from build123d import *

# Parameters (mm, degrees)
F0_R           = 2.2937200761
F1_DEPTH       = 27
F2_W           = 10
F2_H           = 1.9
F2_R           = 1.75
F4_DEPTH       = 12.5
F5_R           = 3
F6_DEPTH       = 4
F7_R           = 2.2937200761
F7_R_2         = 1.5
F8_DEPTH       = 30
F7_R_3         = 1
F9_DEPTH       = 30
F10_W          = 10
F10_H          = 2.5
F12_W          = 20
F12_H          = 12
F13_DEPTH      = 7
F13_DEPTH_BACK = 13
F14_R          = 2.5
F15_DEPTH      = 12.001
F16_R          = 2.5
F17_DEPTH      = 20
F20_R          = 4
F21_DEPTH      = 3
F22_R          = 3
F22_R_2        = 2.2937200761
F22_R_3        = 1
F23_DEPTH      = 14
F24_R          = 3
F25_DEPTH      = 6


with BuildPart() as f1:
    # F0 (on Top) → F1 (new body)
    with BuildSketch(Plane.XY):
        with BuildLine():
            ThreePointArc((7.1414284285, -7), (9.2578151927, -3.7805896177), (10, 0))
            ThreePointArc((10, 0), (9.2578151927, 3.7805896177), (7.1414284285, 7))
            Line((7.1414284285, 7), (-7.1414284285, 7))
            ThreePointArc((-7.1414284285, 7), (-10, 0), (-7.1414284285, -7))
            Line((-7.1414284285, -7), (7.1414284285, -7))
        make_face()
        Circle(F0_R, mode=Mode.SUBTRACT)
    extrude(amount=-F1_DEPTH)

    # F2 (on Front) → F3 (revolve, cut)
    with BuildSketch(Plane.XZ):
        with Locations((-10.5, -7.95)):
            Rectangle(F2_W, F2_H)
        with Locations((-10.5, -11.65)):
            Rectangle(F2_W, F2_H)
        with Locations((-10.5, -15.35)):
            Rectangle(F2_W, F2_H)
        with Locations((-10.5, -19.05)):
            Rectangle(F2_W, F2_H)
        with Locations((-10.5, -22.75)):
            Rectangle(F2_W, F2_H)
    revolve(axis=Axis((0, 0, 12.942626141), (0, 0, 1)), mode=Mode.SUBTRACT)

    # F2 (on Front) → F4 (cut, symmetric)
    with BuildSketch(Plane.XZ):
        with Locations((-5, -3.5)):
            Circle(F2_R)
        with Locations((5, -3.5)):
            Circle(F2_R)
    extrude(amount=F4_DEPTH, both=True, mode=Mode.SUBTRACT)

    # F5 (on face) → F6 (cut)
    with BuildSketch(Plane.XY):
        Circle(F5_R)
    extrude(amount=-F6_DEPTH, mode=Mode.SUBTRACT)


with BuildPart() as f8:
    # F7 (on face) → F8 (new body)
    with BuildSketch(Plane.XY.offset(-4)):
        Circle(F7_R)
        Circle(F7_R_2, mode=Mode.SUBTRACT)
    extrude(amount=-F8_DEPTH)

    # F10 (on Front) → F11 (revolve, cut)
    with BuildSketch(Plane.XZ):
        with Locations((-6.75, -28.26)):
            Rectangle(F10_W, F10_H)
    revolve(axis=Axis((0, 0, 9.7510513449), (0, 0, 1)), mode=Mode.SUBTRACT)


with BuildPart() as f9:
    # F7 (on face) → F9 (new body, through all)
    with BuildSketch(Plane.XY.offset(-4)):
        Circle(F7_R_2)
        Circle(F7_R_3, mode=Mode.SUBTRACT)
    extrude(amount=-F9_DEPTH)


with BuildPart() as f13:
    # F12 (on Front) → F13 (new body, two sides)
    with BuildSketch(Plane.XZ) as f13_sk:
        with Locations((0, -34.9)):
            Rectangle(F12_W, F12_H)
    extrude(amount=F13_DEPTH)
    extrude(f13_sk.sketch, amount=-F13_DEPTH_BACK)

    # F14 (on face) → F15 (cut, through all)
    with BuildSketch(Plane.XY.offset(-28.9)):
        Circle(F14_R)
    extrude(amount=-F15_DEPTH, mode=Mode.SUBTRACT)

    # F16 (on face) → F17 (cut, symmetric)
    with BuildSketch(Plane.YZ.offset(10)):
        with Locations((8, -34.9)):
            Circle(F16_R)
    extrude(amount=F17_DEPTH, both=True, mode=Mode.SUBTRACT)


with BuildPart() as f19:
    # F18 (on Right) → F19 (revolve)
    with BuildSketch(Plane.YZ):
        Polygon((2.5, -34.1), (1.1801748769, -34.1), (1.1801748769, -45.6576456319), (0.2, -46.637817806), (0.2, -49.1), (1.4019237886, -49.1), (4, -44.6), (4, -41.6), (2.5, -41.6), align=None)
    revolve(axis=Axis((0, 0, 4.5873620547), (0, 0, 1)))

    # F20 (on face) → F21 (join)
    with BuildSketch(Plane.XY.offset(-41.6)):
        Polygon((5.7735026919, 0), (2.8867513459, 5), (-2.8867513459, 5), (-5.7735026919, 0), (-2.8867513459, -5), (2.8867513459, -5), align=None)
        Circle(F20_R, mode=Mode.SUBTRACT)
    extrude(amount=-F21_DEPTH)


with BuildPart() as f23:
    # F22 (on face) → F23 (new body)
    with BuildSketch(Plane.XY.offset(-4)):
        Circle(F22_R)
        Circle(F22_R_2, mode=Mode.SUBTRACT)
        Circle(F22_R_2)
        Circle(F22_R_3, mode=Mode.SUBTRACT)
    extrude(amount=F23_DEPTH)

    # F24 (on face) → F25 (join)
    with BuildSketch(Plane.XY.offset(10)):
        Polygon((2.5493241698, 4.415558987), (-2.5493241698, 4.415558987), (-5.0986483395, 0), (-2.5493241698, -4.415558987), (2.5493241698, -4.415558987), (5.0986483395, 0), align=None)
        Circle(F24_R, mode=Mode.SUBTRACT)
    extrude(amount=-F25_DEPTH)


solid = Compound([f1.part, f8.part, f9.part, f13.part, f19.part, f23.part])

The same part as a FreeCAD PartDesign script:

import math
import FreeCAD as App
import Part
import Sketcher
Q = App.Units.Quantity


def add_polygon(sketch, points):
    """Adds a closed chain of lines whose ends are joined by coincident constraints."""
    first, n = sketch.GeometryCount, len(points)
    for a, b in zip(points, points[1:] + points[:1]):
        sketch.addGeometry(Part.LineSegment(App.Vector(*a, 0), App.Vector(*b, 0)), False)
    for i in range(n):
        sketch.addConstraint(Sketcher.Constraint("Coincident", first + i, 2, first + (i + 1) % n, 1))

doc = App.newDocument("Part")
body = doc.addObject("PartDesign::Body", "Body")

# Sketch on XY plane
sketch1 = body.newObject("Sketcher::SketchObject", "Sketch")
sketch1.AttachmentSupport = (doc.getObject("XY_Plane"), [""])
sketch1.MapMode = "FlatFace"
sketch1.addGeometry(Part.ArcOfCircle(Part.Circle(App.Vector(0, 0, 0), App.Vector(0, 0, 1), 10), math.radians(-44.427004), math.radians(0)), False)
sketch1.addGeometry(Part.ArcOfCircle(Part.Circle(App.Vector(0, 0, 0), App.Vector(0, 0, 1), 10), math.radians(0), math.radians(44.427004)), False)
sketch1.addGeometry(Part.LineSegment(App.Vector(7.141428, 7, 0), App.Vector(-7.141428, 7, 0)), False)
sketch1.addGeometry(Part.ArcOfCircle(Part.Circle(App.Vector(0, 0, 0), App.Vector(0, 0, 1), 10), math.radians(135.572996), math.radians(224.427004)), False)
sketch1.addGeometry(Part.LineSegment(App.Vector(-7.141428, -7, 0), App.Vector(7.141428, -7, 0)), False)
sketch1.addGeometry(Part.Circle(App.Vector(0, 0, 0), App.Vector(0, 0, 1), 2.29372), False)
sketch1.addConstraint(Sketcher.Constraint("Tangent", 0, 2, 1, 1))
sketch1.addConstraint(Sketcher.Constraint("Coincident", 1, 2, 2, 1))
sketch1.addConstraint(Sketcher.Constraint("Coincident", 2, 2, 3, 1))
sketch1.addConstraint(Sketcher.Constraint("Coincident", 3, 2, 4, 1))
sketch1.addConstraint(Sketcher.Constraint("Coincident", 4, 2, 0, 1))
sketch1.addConstraint(Sketcher.Constraint("Horizontal", 2))
sketch1.addConstraint(Sketcher.Constraint("Horizontal", 4))
sketch1.addConstraint(Sketcher.Constraint("Coincident", 0, 3, -1, 1))
sketch1.addConstraint(Sketcher.Constraint("Coincident", 3, 3, -1, 1))
sketch1.addConstraint(Sketcher.Constraint("Coincident", 5, 3, -1, 1))
sketch1.addConstraint(Sketcher.Constraint("Equal", 0, 1))
sketch1.addConstraint(Sketcher.Constraint("Equal", 1, 3))
sketch1.addConstraint(Sketcher.Constraint("PointOnObject", 0, 2, -1))
sketch1.addConstraint(Sketcher.Constraint("Vertical", 2, 2, 3, 2))
sketch1.addConstraint(Sketcher.Constraint("Radius", 0, 10.0))
sketch1.addConstraint(Sketcher.Constraint("DistanceY", -1, 1, 1, 2, 7.0))
sketch1.addConstraint(Sketcher.Constraint("Diameter", 5, 4.58744))
pad1 = body.newObject("PartDesign::Pad", "Pad")
pad1.Profile = sketch1
pad1.Length = 27
pad1.Reversed = True

# Sketch on XZ plane
sketch2 = body.newObject("Sketcher::SketchObject", "Sketch001")
sketch2.AttachmentSupport = (doc.getObject("XZ_Plane"), [""])
sketch2.MapMode = "FlatFace"
add_polygon(sketch2, [(-15.5, -7), (-15.5, -8.9), (-5.5, -8.9), (-5.5, -7)])  # lines 0-3
add_polygon(sketch2, [(-15.5, -10.7), (-15.5, -12.6), (-5.5, -12.6), (-5.5, -10.7)])  # lines 4-7
add_polygon(sketch2, [(-15.5, -14.4), (-15.5, -16.3), (-5.5, -16.3), (-5.5, -14.4)])  # lines 8-11
add_polygon(sketch2, [(-15.5, -18.1), (-15.5, -20), (-5.5, -20), (-5.5, -18.1)])  # lines 12-15
add_polygon(sketch2, [(-15.5, -21.8), (-15.5, -23.7), (-5.5, -23.7), (-5.5, -21.8)])  # lines 16-19
sketch2.addConstraint(Sketcher.Constraint("Vertical", 0))
sketch2.addConstraint(Sketcher.Constraint("Horizontal", 1))
sketch2.addConstraint(Sketcher.Constraint("Vertical", 2))
sketch2.addConstraint(Sketcher.Constraint("Horizontal", 3))
sketch2.addConstraint(Sketcher.Constraint("Vertical", 4))
sketch2.addConstraint(Sketcher.Constraint("Horizontal", 5))
sketch2.addConstraint(Sketcher.Constraint("Vertical", 6))
sketch2.addConstraint(Sketcher.Constraint("Horizontal", 7))
sketch2.addConstraint(Sketcher.Constraint("Vertical", 8))
sketch2.addConstraint(Sketcher.Constraint("Horizontal", 9))
sketch2.addConstraint(Sketcher.Constraint("Vertical", 10))
sketch2.addConstraint(Sketcher.Constraint("Horizontal", 11))
sketch2.addConstraint(Sketcher.Constraint("Vertical", 12))
sketch2.addConstraint(Sketcher.Constraint("Horizontal", 13))
sketch2.addConstraint(Sketcher.Constraint("Vertical", 14))
sketch2.addConstraint(Sketcher.Constraint("Horizontal", 15))
sketch2.addConstraint(Sketcher.Constraint("Vertical", 16))
sketch2.addConstraint(Sketcher.Constraint("Horizontal", 17))
sketch2.addConstraint(Sketcher.Constraint("Vertical", 18))
sketch2.addConstraint(Sketcher.Constraint("Horizontal", 19))
sketch2.addConstraint(Sketcher.Constraint("Vertical", 3, 2, 4, 2))
sketch2.addConstraint(Sketcher.Constraint("Vertical", 2, 2, 5, 2))
sketch2.addConstraint(Sketcher.Constraint("Vertical", 7, 2, 8, 2))
sketch2.addConstraint(Sketcher.Constraint("Vertical", 6, 2, 9, 2))
sketch2.addConstraint(Sketcher.Constraint("Vertical", 11, 2, 12, 2))
sketch2.addConstraint(Sketcher.Constraint("Vertical", 10, 2, 13, 2))
sketch2.addConstraint(Sketcher.Constraint("Vertical", 15, 2, 16, 2))
sketch2.addConstraint(Sketcher.Constraint("Vertical", 14, 2, 17, 2))
sketch2.addConstraint(Sketcher.Constraint("Equal", 2, 4))
sketch2.addConstraint(Sketcher.Constraint("Equal", 6, 8))
sketch2.addConstraint(Sketcher.Constraint("Equal", 10, 12))
sketch2.addConstraint(Sketcher.Constraint("Equal", 14, 16))
sketch2.addConstraint(Sketcher.Constraint("DistanceX", 1, 1, 1, 2, 10.0))
sketch2.addConstraint(Sketcher.Constraint("DistanceY", 0, 2, 0, 1, 1.9))
sketch2.addConstraint(Sketcher.Constraint("DistanceY", 2, 2, -1, 1, 7.0))
sketch2.addConstraint(Sketcher.Constraint("DistanceY", 12, 2, -1, 1, 20.0))
sketch2.addConstraint(Sketcher.Constraint("DistanceX", 0, 2, -1, 1, 15.5))
sketch2.addConstraint(Sketcher.Constraint("DistanceY", 4, 2, -1, 1, 12.6))
sketch2.addConstraint(Sketcher.Constraint("DistanceY", 8, 2, -1, 1, 16.3))
sketch2.addConstraint(Sketcher.Constraint("DistanceY", 16, 2, -1, 1, 23.7))
groove = body.newObject("PartDesign::Groove", "Groove")
groove.Profile = sketch2
groove.ReferenceAxis = (sketch2, ["V_Axis"])
groove.Angle = 360

# Sketch on XZ plane
sketch3 = body.newObject("Sketcher::SketchObject", "Sketch002")
sketch3.AttachmentSupport = (doc.getObject("XZ_Plane"), [""])
sketch3.MapMode = "FlatFace"
sketch3.addGeometry(Part.Circle(App.Vector(-5, -3.5, 0), App.Vector(0, 0, 1), 1.75), False)
sketch3.addGeometry(Part.Circle(App.Vector(5, -3.5, 0), App.Vector(0, 0, 1), 1.75), False)
sketch3.addConstraint(Sketcher.Constraint("Equal", 0, 1))
sketch3.addConstraint(Sketcher.Constraint("Symmetric", 0, 3, 1, 3, -2))
sketch3.addConstraint(Sketcher.Constraint("Diameter", 0, 3.5))
sketch3.addConstraint(Sketcher.Constraint("DistanceX", 0, 3, -1, 1, 5.0))
sketch3.addConstraint(Sketcher.Constraint("DistanceY", 0, 3, -1, 1, 3.5))
pocket1 = body.newObject("PartDesign::Pocket", "Pocket")
pocket1.Profile = sketch3
pocket1.Length = 25
pocket1.Midplane = True

# Sketch on XY plane
sketch4 = body.newObject("Sketcher::SketchObject", "Sketch003")
sketch4.AttachmentSupport = (doc.getObject("XY_Plane"), [""])
sketch4.MapMode = "FlatFace"
sketch4.addGeometry(Part.Circle(App.Vector(0, 0, 0), App.Vector(0, 0, 1), 3), False)
sketch4.addConstraint(Sketcher.Constraint("Coincident", 0, 3, -1, 1))
sketch4.addConstraint(Sketcher.Constraint("Diameter", 0, 6.0))
pocket2 = body.newObject("PartDesign::Pocket", "Pocket001")
pocket2.Profile = sketch4
pocket2.Length = 4
body2 = doc.addObject("PartDesign::Body", "Body001")

# Sketch on XY plane
sketch5 = body2.newObject("Sketcher::SketchObject", "Sketch004")
sketch5.AttachmentSupport = (doc.getObject("XY_Plane001"), [""])
sketch5.MapMode = "FlatFace"
sketch5.AttachmentOffset = App.Placement(App.Vector(0, 0, -4), App.Rotation())
sketch5.addGeometry(Part.Circle(App.Vector(0, 0, 0), App.Vector(0, 0, 1), 2.29372), False)
sketch5.addGeometry(Part.Circle(App.Vector(0, 0, 0), App.Vector(0, 0, 1), 1.5), False)
sketch5.addConstraint(Sketcher.Constraint("Coincident", 0, 3, -1, 1))
sketch5.addConstraint(Sketcher.Constraint("Coincident", 1, 3, -1, 1))
sketch5.addConstraint(Sketcher.Constraint("Diameter", 1, 3.0))
sketch5.addConstraint(Sketcher.Constraint("Diameter", 0, 4.58744))
pad2 = body2.newObject("PartDesign::Pad", "Pad001")
pad2.Profile = sketch5
pad2.Length = 30
pad2.Reversed = True

# Sketch on XZ plane
sketch6 = body2.newObject("Sketcher::SketchObject", "Sketch005")
sketch6.AttachmentSupport = (doc.getObject("XZ_Plane001"), [""])
sketch6.MapMode = "FlatFace"
add_polygon(sketch6, [(-11.75, -27.01), (-11.75, -29.51), (-1.75, -29.51), (-1.75, -27.01)])  # lines 0-3
sketch6.addConstraint(Sketcher.Constraint("Vertical", 0))
sketch6.addConstraint(Sketcher.Constraint("Horizontal", 1))
sketch6.addConstraint(Sketcher.Constraint("Vertical", 2))
sketch6.addConstraint(Sketcher.Constraint("Horizontal", 3))
sketch6.addConstraint(Sketcher.Constraint("DistanceX", 1, 1, 1, 2, 10.0))
sketch6.addConstraint(Sketcher.Constraint("DistanceY", 0, 2, 0, 1, 2.5))
sketch6.addConstraint(Sketcher.Constraint("DistanceX", 0, 2, -1, 1, 11.75))
sketch6.addConstraint(Sketcher.Constraint("DistanceY", 0, 2, -1, 1, 29.51))
groove2 = body2.newObject("PartDesign::Groove", "Groove001")
groove2.Profile = sketch6
groove2.ReferenceAxis = (sketch6, ["V_Axis"])
groove2.Angle = 360
body3 = doc.addObject("PartDesign::Body", "Body002")

# Sketch on XY plane
sketch7 = body3.newObject("Sketcher::SketchObject", "Sketch006")
sketch7.AttachmentSupport = (doc.getObject("XY_Plane002"), [""])
sketch7.MapMode = "FlatFace"
sketch7.AttachmentOffset = App.Placement(App.Vector(0, 0, -4), App.Rotation())
sketch7.addGeometry(Part.Circle(App.Vector(0, 0, 0), App.Vector(0, 0, 1), 1.5), False)
sketch7.addGeometry(Part.Circle(App.Vector(0, 0, 0), App.Vector(0, 0, 1), 1), False)
sketch7.addConstraint(Sketcher.Constraint("Coincident", 0, 3, -1, 1))
sketch7.addConstraint(Sketcher.Constraint("Coincident", 1, 3, -1, 1))
sketch7.addConstraint(Sketcher.Constraint("Diameter", 0, 3.0))
sketch7.addConstraint(Sketcher.Constraint("Diameter", 1, 2.0))
pad3 = body3.newObject("PartDesign::Pad", "Pad002")
pad3.Profile = sketch7
pad3.Length = 30
pad3.Reversed = True
body4 = doc.addObject("PartDesign::Body", "Body003")

# Sketch on XZ plane
sketch8 = body4.newObject("Sketcher::SketchObject", "Sketch007")
sketch8.AttachmentSupport = (doc.getObject("XZ_Plane003"), [""])
sketch8.MapMode = "FlatFace"
add_polygon(sketch8, [(-10, -28.9), (-10, -40.9), (10, -40.9), (10, -28.9)])  # lines 0-3
sketch8.addConstraint(Sketcher.Constraint("Vertical", 0))
sketch8.addConstraint(Sketcher.Constraint("Horizontal", 1))
sketch8.addConstraint(Sketcher.Constraint("Vertical", 2))
sketch8.addConstraint(Sketcher.Constraint("Horizontal", 3))
sketch8.addConstraint(Sketcher.Constraint("DistanceX", 1, 1, 1, 2, 20.0))
sketch8.addConstraint(Sketcher.Constraint("DistanceY", 0, 2, 0, 1, 12.0))
sketch8.addConstraint(Sketcher.Constraint("DistanceX", 0, 2, -1, 1, 10.0))
sketch8.addConstraint(Sketcher.Constraint("DistanceY", 0, 2, -1, 1, 40.9))
pad4 = body4.newObject("PartDesign::Pad", "Pad003")
pad4.Profile = sketch8
pad4.Type = "TwoLengths"
pad4.Length = 7
pad4.Length2 = 13

# Sketch on XY plane
sketch9 = body4.newObject("Sketcher::SketchObject", "Sketch008")
sketch9.AttachmentSupport = (doc.getObject("XY_Plane003"), [""])
sketch9.MapMode = "FlatFace"
sketch9.AttachmentOffset = App.Placement(App.Vector(0, 0, -28.9), App.Rotation())
sketch9.addGeometry(Part.Circle(App.Vector(0, 0, 0), App.Vector(0, 0, 1), 2.5), False)
sketch9.addConstraint(Sketcher.Constraint("Coincident", 0, 3, -1, 1))
sketch9.addConstraint(Sketcher.Constraint("Diameter", 0, 5.0))
pocket3 = body4.newObject("PartDesign::Pocket", "Pocket002")
pocket3.Profile = sketch9
pocket3.Type = "ThroughAll"

# Sketch on YZ plane
sketch10 = body4.newObject("Sketcher::SketchObject", "Sketch009")
sketch10.AttachmentSupport = (doc.getObject("YZ_Plane003"), [""])
sketch10.MapMode = "FlatFace"
sketch10.AttachmentOffset = App.Placement(App.Vector(0, 0, 10), App.Rotation())
sketch10.addGeometry(Part.Circle(App.Vector(8, -34.9, 0), App.Vector(0, 0, 1), 2.5), False)
sketch10.addConstraint(Sketcher.Constraint("Diameter", 0, 5.0))
sketch10.addConstraint(Sketcher.Constraint("DistanceX", -1, 1, 0, 3, 8.0))
sketch10.addConstraint(Sketcher.Constraint("DistanceY", 0, 3, -1, 1, 34.9))
pocket4 = body4.newObject("PartDesign::Pocket", "Pocket003")
pocket4.Profile = sketch10
pocket4.Length = 40
pocket4.Midplane = True
body5 = doc.addObject("PartDesign::Body", "Body004")

# Sketch on YZ plane
sketch11 = body5.newObject("Sketcher::SketchObject", "Sketch010")
sketch11.AttachmentSupport = (doc.getObject("YZ_Plane004"), [""])
sketch11.MapMode = "FlatFace"
add_polygon(sketch11, [(2.5, -34.1), (1.180175, -34.1), (1.180175, -45.657646), (0.2, -46.637818), (0.2, -49.1), (1.401924, -49.1), (4, -44.6), (4, -41.6), (2.5, -41.6)])  # lines 0-8
sketch11.addConstraint(Sketcher.Constraint("Horizontal", 0))
sketch11.addConstraint(Sketcher.Constraint("Vertical", 1))
sketch11.addConstraint(Sketcher.Constraint("Vertical", 3))
sketch11.addConstraint(Sketcher.Constraint("Horizontal", 4))
sketch11.addConstraint(Sketcher.Constraint("Vertical", 6))
sketch11.addConstraint(Sketcher.Constraint("Horizontal", 7))
sketch11.addConstraint(Sketcher.Constraint("Vertical", 8))
sketch11.addConstraint(Sketcher.Constraint("DistanceY", 6, 1, 6, 2, 3.0))
sketch11.addConstraint(Sketcher.Constraint("Angle", 5, Q("60 deg")))
sketch11.addConstraint(Sketcher.Constraint("DistanceX", 7, 2, 7, 1, 1.5))
sketch11.addConstraint(Sketcher.Constraint("DistanceY", 8, 1, 8, 2, 7.5))
sketch11.addConstraint(Sketcher.Constraint("DistanceX", -1, 1, 5, 2, 4.0))
sketch11.addConstraint(Sketcher.Constraint("DistanceY", 3, 2, 0, 2, 15.0))
sketch11.addConstraint(Sketcher.Constraint("DistanceY", 0, 2, -1, 1, 34.1))
sketch11.addConstraint(Sketcher.Constraint("DistanceX", -1, 1, 2, 2, 0.2))
sketch11.addConstraint(Sketcher.Constraint("DistanceX", 0, 2, 0, 1, 1.319825))
sketch11.addConstraint(Sketcher.Constraint("DistanceY", 1, 2, 1, 1, 11.557646))
sketch11.addConstraint(Sketcher.Constraint("DistanceY", 3, 2, 3, 1, 2.462182))
revolution = body5.newObject("PartDesign::Revolution", "Revolution")
revolution.Profile = sketch11
revolution.ReferenceAxis = (sketch11, ["V_Axis"])
revolution.Angle = 360

# Sketch on XY plane
sketch12 = body5.newObject("Sketcher::SketchObject", "Sketch011")
sketch12.AttachmentSupport = (doc.getObject("XY_Plane004"), [""])
sketch12.MapMode = "FlatFace"
sketch12.AttachmentOffset = App.Placement(App.Vector(0, 0, -41.6), App.Rotation())
add_polygon(sketch12, [(5.773503, 0), (2.886751, 5), (-2.886751, 5), (-5.773503, 0), (-2.886751, -5), (2.886751, -5)])  # lines 0-5
sketch12.addGeometry(Part.Circle(App.Vector(0, 0, 0), App.Vector(0, 0, 1), 4), False)  # 6
sketch12.addConstraint(Sketcher.Constraint("Horizontal", 1))
sketch12.addConstraint(Sketcher.Constraint("Horizontal", 4))
sketch12.addConstraint(Sketcher.Constraint("Coincident", 6, 3, -1, 1))
sketch12.addConstraint(Sketcher.Constraint("Symmetric", 0, 2, 3, 2, -1, 1))
sketch12.addConstraint(Sketcher.Constraint("Symmetric", 2, 2, 5, 2, -1, 1))
sketch12.addConstraint(Sketcher.Constraint("PointOnObject", 2, 2, -1))
sketch12.addConstraint(Sketcher.Constraint("Parallel", 2, 5))
sketch12.addConstraint(Sketcher.Constraint("Vertical", 1, 2, 3, 2))
sketch12.addConstraint(Sketcher.Constraint("Diameter", 6, 8.0))
sketch12.addConstraint(Sketcher.Constraint("Angle", 0, Q("120 deg")))
sketch12.addConstraint(Sketcher.Constraint("DistanceY", -1, 1, 0, 2, 5.0))
sketch12.addConstraint(Sketcher.Constraint("DistanceX", 1, 2, 1, 1, 5.773503))
pad5 = body5.newObject("PartDesign::Pad", "Pad004")
pad5.Profile = sketch12
pad5.Length = 3
pad5.Reversed = True
body6 = doc.addObject("PartDesign::Body", "Body005")

# Sketch on XY plane
sketch13 = body6.newObject("Sketcher::SketchObject", "Sketch012")
sketch13.AttachmentSupport = (doc.getObject("XY_Plane005"), [""])
sketch13.MapMode = "FlatFace"
sketch13.AttachmentOffset = App.Placement(App.Vector(0, 0, -4), App.Rotation())
sketch13.addGeometry(Part.Circle(App.Vector(0, 0, 0), App.Vector(0, 0, 1), 3), False)
sketch13.addGeometry(Part.Circle(App.Vector(0, 0, 0), App.Vector(0, 0, 1), 1), False)
sketch13.addConstraint(Sketcher.Constraint("Coincident", 0, 3, -1, 1))
sketch13.addConstraint(Sketcher.Constraint("Coincident", 1, 3, -1, 1))
sketch13.addConstraint(Sketcher.Constraint("Diameter", 0, 6.0))
sketch13.addConstraint(Sketcher.Constraint("Diameter", 1, 2.0))
pad6 = body6.newObject("PartDesign::Pad", "Pad005")
pad6.Profile = sketch13
pad6.Length = 14

# Sketch on XY plane
sketch14 = body6.newObject("Sketcher::SketchObject", "Sketch013")
sketch14.AttachmentSupport = (doc.getObject("XY_Plane005"), [""])
sketch14.MapMode = "FlatFace"
sketch14.AttachmentOffset = App.Placement(App.Vector(0, 0, 10), App.Rotation())
add_polygon(sketch14, [(2.549324, 4.415559), (-2.549324, 4.415559), (-5.098648, 0), (-2.549324, -4.415559), (2.549324, -4.415559), (5.098648, 0)])  # lines 0-5
sketch14.addGeometry(Part.Circle(App.Vector(0, 0, 0), App.Vector(0, 0, 1), 3), False)  # 6
sketch14.addConstraint(Sketcher.Constraint("Horizontal", 0))
sketch14.addConstraint(Sketcher.Constraint("Horizontal", 3))
sketch14.addConstraint(Sketcher.Constraint("Coincident", 6, 3, -1, 1))
sketch14.addConstraint(Sketcher.Constraint("Symmetric", 0, 2, 3, 2, -1, 1))
sketch14.addConstraint(Sketcher.Constraint("Symmetric", 1, 2, 4, 2, -1, 1))
sketch14.addConstraint(Sketcher.Constraint("PointOnObject", 1, 2, -1))
sketch14.addConstraint(Sketcher.Constraint("Parallel", 2, 5))
sketch14.addConstraint(Sketcher.Constraint("Vertical", 0, 2, 2, 2))
sketch14.addConstraint(Sketcher.Constraint("Diameter", 6, 6.0))
sketch14.addConstraint(Sketcher.Constraint("Angle", 1, Q("-120 deg")))
sketch14.addConstraint(Sketcher.Constraint("DistanceX", 0, 2, 0, 1, 5.098648))
sketch14.addConstraint(Sketcher.Constraint("Distance", 1, 5.098648))
pad7 = body6.newObject("PartDesign::Pad", "Pad006")
pad7.Profile = sketch14
pad7.Length = 6
pad7.Reversed = True

doc.recompute()
